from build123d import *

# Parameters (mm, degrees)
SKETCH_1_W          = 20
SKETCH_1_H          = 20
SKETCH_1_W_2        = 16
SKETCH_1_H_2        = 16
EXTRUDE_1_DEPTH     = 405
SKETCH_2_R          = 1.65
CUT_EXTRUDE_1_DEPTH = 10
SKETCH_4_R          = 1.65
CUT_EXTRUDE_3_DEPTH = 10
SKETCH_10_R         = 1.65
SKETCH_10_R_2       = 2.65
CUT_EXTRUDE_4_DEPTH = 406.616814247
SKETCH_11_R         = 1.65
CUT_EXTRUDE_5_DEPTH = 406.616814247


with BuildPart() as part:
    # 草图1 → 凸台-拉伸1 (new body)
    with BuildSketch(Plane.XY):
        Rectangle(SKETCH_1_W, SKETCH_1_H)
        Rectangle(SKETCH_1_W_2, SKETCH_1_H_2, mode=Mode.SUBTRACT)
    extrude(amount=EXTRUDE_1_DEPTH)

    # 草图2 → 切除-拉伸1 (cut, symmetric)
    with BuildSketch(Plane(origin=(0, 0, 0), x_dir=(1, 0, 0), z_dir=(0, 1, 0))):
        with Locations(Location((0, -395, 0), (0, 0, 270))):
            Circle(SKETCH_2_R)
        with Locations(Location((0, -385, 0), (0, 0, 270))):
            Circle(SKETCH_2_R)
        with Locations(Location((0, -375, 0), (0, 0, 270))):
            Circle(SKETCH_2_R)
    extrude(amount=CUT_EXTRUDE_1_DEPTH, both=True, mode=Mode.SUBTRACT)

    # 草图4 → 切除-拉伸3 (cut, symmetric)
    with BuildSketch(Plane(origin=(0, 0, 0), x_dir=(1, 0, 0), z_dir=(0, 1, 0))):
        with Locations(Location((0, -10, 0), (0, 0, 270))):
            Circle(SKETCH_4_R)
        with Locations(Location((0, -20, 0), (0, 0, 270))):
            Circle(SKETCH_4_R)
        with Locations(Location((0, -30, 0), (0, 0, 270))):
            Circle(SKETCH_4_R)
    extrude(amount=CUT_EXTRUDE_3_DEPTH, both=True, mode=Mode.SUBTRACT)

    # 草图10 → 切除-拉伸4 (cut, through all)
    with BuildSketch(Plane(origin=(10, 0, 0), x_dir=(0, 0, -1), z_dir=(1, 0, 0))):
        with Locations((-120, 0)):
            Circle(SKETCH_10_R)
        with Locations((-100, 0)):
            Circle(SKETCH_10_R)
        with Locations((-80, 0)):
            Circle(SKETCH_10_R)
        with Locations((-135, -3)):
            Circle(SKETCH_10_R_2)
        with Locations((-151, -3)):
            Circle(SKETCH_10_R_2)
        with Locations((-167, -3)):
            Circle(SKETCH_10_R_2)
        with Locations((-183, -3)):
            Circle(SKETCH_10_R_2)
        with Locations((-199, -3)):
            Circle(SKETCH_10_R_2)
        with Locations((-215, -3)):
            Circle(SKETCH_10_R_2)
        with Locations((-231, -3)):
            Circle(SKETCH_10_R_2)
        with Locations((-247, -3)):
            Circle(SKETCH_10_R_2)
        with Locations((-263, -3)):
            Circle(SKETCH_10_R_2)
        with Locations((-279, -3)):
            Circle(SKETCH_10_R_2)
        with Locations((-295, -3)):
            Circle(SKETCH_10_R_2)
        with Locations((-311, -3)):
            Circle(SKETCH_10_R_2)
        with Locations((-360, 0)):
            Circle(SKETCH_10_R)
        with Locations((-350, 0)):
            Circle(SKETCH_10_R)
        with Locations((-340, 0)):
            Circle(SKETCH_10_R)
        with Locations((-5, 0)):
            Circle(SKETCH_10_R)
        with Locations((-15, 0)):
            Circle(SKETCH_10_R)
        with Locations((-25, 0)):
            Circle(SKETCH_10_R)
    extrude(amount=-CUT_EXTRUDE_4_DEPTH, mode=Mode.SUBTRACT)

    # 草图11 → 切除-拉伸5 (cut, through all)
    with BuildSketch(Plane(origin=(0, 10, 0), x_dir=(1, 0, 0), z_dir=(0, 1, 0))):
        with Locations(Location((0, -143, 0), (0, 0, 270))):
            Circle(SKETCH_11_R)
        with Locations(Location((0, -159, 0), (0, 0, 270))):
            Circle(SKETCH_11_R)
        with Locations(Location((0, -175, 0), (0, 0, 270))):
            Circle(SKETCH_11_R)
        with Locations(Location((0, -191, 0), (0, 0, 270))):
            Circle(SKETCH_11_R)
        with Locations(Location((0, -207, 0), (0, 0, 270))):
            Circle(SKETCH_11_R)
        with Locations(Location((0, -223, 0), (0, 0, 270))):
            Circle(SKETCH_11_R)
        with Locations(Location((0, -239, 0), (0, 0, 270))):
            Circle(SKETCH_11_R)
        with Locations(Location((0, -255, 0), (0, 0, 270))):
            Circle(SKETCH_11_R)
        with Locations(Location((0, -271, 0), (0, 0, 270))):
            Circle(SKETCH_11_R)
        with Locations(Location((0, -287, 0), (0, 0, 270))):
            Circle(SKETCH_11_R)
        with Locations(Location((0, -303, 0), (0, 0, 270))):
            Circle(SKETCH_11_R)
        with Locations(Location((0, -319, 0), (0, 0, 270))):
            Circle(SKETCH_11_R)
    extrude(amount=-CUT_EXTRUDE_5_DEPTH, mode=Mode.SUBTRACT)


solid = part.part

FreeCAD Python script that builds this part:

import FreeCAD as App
import Part
import Sketcher
from FreeCAD import Vector
Q = App.Units.Quantity

doc = App.newDocument("Part")
body = doc.addObject("PartDesign::Body", "Body")

# Sketch on XY plane
sketch1 = body.newObject("Sketcher::SketchObject", "Sketch")
sketch1.AttachmentSupport = (doc.getObject("XY_Plane"), [""])
sketch1.MapMode = "FlatFace"
sketch1.addGeometry(Part.LineSegment(Vector(-10, 10, 0), Vector(-10, -10, 0)), False)
sketch1.addGeometry(Part.LineSegment(Vector(-10, -10, 0), Vector(10, -10, 0)), False)
sketch1.addGeometry(Part.LineSegment(Vector(10, -10, 0), Vector(10, 10, 0)), False)
sketch1.addGeometry(Part.LineSegment(Vector(10, 10, 0), Vector(-10, 10, 0)), False)
sketch1.addGeometry(Part.LineSegment(Vector(8, -8, 0), Vector(-8, -8, 0)), False)
sketch1.addGeometry(Part.LineSegment(Vector(-8, -8, 0), Vector(-8, 8, 0)), False)
sketch1.addGeometry(Part.LineSegment(Vector(-8, 8, 0), Vector(8, 8, 0)), False)
sketch1.addGeometry(Part.LineSegment(Vector(8, 8, 0), Vector(8, -8, 0)), False)
sketch1.addConstraint(Sketcher.Constraint("Coincident", 0, 2, 1, 1))
sketch1.addConstraint(Sketcher.Constraint("Coincident", 1, 2, 2, 1))
sketch1.addConstraint(Sketcher.Constraint("Coincident", 2, 2, 3, 1))
sketch1.addConstraint(Sketcher.Constraint("Coincident", 3, 2, 0, 1))
sketch1.addConstraint(Sketcher.Constraint("Coincident", 4, 2, 5, 1))
sketch1.addConstraint(Sketcher.Constraint("Coincident", 5, 2, 6, 1))
sketch1.addConstraint(Sketcher.Constraint("Coincident", 6, 2, 7, 1))
sketch1.addConstraint(Sketcher.Constraint("Coincident", 7, 2, 4, 1))
sketch1.addConstraint(Sketcher.Constraint("Vertical", 0))
sketch1.addConstraint(Sketcher.Constraint("Horizontal", 1))
sketch1.addConstraint(Sketcher.Constraint("Vertical", 2))
sketch1.addConstraint(Sketcher.Constraint("Horizontal", 3))
sketch1.addConstraint(Sketcher.Constraint("Horizontal", 4))
sketch1.addConstraint(Sketcher.Constraint("Vertical", 5))
sketch1.addConstraint(Sketcher.Constraint("Horizontal", 6))
sketch1.addConstraint(Sketcher.Constraint("Vertical", 7))
sketch1.addConstraint(Sketcher.Constraint("Symmetric", 0, 2, 2, 2, -1, 1))
sketch1.addConstraint(Sketcher.Constraint("Symmetric", 4, 2, 6, 2, -1, 1))
sketch1.addConstraint(Sketcher.Constraint("Equal", 3, 0))
sketch1.addConstraint(Sketcher.Constraint("Equal", 6, 5))
sketch1.addConstraint(Sketcher.Constraint("DistanceX", 1, 1, 1, 2, Q("20 mm")))
sketch1.addConstraint(Sketcher.Constraint("DistanceX", 4, 2, 4, 1, Q("16 mm")))
pad1 = body.newObject("PartDesign::Pad", "Pad")
pad1.Profile = sketch1
pad1.Length = 405

# Sketch on XZ plane
sketch2 = body.newObject("Sketcher::SketchObject", "Sketch001")
sketch2.AttachmentSupport = (doc.getObject("XZ_Plane"), [""])
sketch2.MapMode = "FlatFace"
sketch2.addGeometry(Part.Circle(Vector(0, 395, 0), Vector(0, 0, 1), 1.65), False)
sketch2.addGeometry(Part.Circle(Vector(0, 385, 0), Vector(0, 0, 1), 1.65), False)
sketch2.addGeometry(Part.Circle(Vector(0, 375, 0), Vector(0, 0, 1), 1.65), False)
sketch2.addConstraint(Sketcher.Constraint("Equal", 0, 1))
sketch2.addConstraint(Sketcher.Constraint("Equal", 1, 2))
sketch2.addConstraint(Sketcher.Constraint("PointOnObject", 0, 3, -2))
sketch2.addConstraint(Sketcher.Constraint("PointOnObject", 1, 3, -2))
sketch2.addConstraint(Sketcher.Constraint("PointOnObject", 2, 3, -2))
sketch2.addConstraint(Sketcher.Constraint("Diameter", 0, Q("3.3 mm")))
sketch2.addConstraint(Sketcher.Constraint("DistanceY", -1, 1, 0, 3, Q("395 mm")))
sketch2.addConstraint(Sketcher.Constraint("DistanceY", -1, 1, 1, 3, Q("385 mm")))
sketch2.addConstraint(Sketcher.Constraint("DistanceY", -1, 1, 2, 3, Q("375 mm")))
pocket1 = body.newObject("PartDesign::Pocket", "Pocket")
pocket1.Profile = sketch2
pocket1.Length = 20
pocket1.Midplane = True

# Sketch on XZ plane
sketch3 = body.newObject("Sketcher::SketchObject", "Sketch002")
sketch3.AttachmentSupport = (doc.getObject("XZ_Plane"), [""])
sketch3.MapMode = "FlatFace"
sketch3.addGeometry(Part.Circle(Vector(0, 10, 0), Vector(0, 0, 1), 1.65), False)
sketch3.addGeometry(Part.Circle(Vector(0, 20, 0), Vector(0, 0, 1), 1.65), False)
sketch3.addGeometry(Part.Circle(Vector(0, 30, 0), Vector(0, 0, 1), 1.65), False)
sketch3.addConstraint(Sketcher.Constraint("Equal", 0, 1))
sketch3.addConstraint(Sketcher.Constraint("Equal", 1, 2))
sketch3.addConstraint(Sketcher.Constraint("PointOnObject", 0, 3, -2))
sketch3.addConstraint(Sketcher.Constraint("PointOnObject", 1, 3, -2))
sketch3.addConstraint(Sketcher.Constraint("PointOnObject", 2, 3, -2))
sketch3.addConstraint(Sketcher.Constraint("Diameter", 0, Q("3.3 mm")))
sketch3.addConstraint(Sketcher.Constraint("DistanceY", -1, 1, 0, 3, Q("10 mm")))
sketch3.addConstraint(Sketcher.Constraint("DistanceY", -1, 1, 1, 3, Q("20 mm")))
sketch3.addConstraint(Sketcher.Constraint("DistanceY", -1, 1, 2, 3, Q("30 mm")))
pocket2 = body.newObject("PartDesign::Pocket", "Pocket001")
pocket2.Profile = sketch3
pocket2.Length = 20
pocket2.Midplane = True

# Sketch on YZ plane
sketch4 = body.newObject("Sketcher::SketchObject", "Sketch003")
sketch4.AttachmentSupport = (doc.getObject("YZ_Plane"), [""])
sketch4.MapMode = "FlatFace"
sketch4.AttachmentOffset = App.Placement(Vector(0, 0, 10), App.Rotation())
sketch4.addGeometry(Part.Circle(Vector(0, 120, 0), Vector(0, 0, 1), 1.65), False)
sketch4.addGeometry(Part.Circle(Vector(0, 100, 0), Vector(0, 0, 1), 1.65), False)
sketch4.addGeometry(Part.Circle(Vector(0, 80, 0), Vector(0, 0, 1), 1.65), False)
sketch4.addGeometry(Part.Circle(Vector(-3, 135, 0), Vector(0, 0, 1), 2.65), False)
sketch4.addGeometry(Part.Circle(Vector(-3, 151, 0), Vector(0, 0, 1), 2.65), False)
sketch4.addGeometry(Part.Circle(Vector(-3, 167, 0), Vector(0, 0, 1), 2.65), False)
sketch4.addGeometry(Part.Circle(Vector(-3, 183, 0), Vector(0, 0, 1), 2.65), False)
sketch4.addGeometry(Part.Circle(Vector(-3, 199, 0), Vector(0, 0, 1), 2.65), False)
sketch4.addGeometry(Part.Circle(Vector(-3, 215, 0), Vector(0, 0, 1), 2.65), False)
sketch4.addGeometry(Part.Circle(Vector(-3, 231, 0), Vector(0, 0, 1), 2.65), False)
sketch4.addGeometry(Part.Circle(Vector(-3, 247, 0), Vector(0, 0, 1), 2.65), False)
sketch4.addGeometry(Part.Circle(Vector(-3, 263, 0), Vector(0, 0, 1), 2.65), False)
sketch4.addGeometry(Part.Circle(Vector(-3, 279, 0), Vector(0, 0, 1), 2.65), False)
sketch4.addGeometry(Part.Circle(Vector(-3, 295, 0), Vector(0, 0, 1), 2.65), False)
sketch4.addGeometry(Part.Circle(Vector(-3, 311, 0), Vector(0, 0, 1), 2.65), False)
sketch4.addGeometry(Part.Circle(Vector(0, 360, 0), Vector(0, 0, 1), 1.65), False)
sketch4.addGeometry(Part.Circle(Vector(0, 350, 0), Vector(0, 0, 1), 1.65), False)
sketch4.addGeometry(Part.Circle(Vector(0, 340, 0), Vector(0, 0, 1), 1.65), False)
sketch4.addGeometry(Part.Circle(Vector(0, 5, 0), Vector(0, 0, 1), 1.65), False)
sketch4.addGeometry(Part.Circle(Vector(0, 15, 0), Vector(0, 0, 1), 1.65), False)
sketch4.addGeometry(Part.Circle(Vector(0, 25, 0), Vector(0, 0, 1), 1.65), False)
sketch4.addConstraint(Sketcher.Constraint("Equal", 0, 1))
sketch4.addConstraint(Sketcher.Constraint("Equal", 1, 2))
sketch4.addConstraint(Sketcher.Constraint("Equal", 3, 4))
sketch4.addConstraint(Sketcher.Constraint("Equal", 4, 5))
sketch4.addConstraint(Sketcher.Constraint("Equal", 5, 6))
sketch4.addConstraint(Sketcher.Constraint("Equal", 6, 7))
sketch4.addConstraint(Sketcher.Constraint("Equal", 7, 8))
sketch4.addConstraint(Sketcher.Constraint("Equal", 8, 9))
sketch4.addConstraint(Sketcher.Constraint("Equal", 9, 10))
sketch4.addConstraint(Sketcher.Constraint("Equal", 10, 11))
sketch4.addConstraint(Sketcher.Constraint("Equal", 11, 12))
sketch4.addConstraint(Sketcher.Constraint("Equal", 12, 13))
sketch4.addConstraint(Sketcher.Constraint("Equal", 13, 14))
sketch4.addConstraint(Sketcher.Constraint("Equal", 2, 15))
sketch4.addConstraint(Sketcher.Constraint("Equal", 15, 16))
sketch4.addConstraint(Sketcher.Constraint("Equal", 16, 17))
sketch4.addConstraint(Sketcher.Constraint("Equal", 17, 18))
sketch4.addConstraint(Sketcher.Constraint("Equal", 18, 19))
sketch4.addConstraint(Sketcher.Constraint("Equal", 19, 20))
sketch4.addConstraint(Sketcher.Constraint("PointOnObject", 0, 3, -2))
sketch4.addConstraint(Sketcher.Constraint("PointOnObject", 1, 3, -2))
sketch4.addConstraint(Sketcher.Constraint("PointOnObject", 2, 3, -2))
sketch4.addConstraint(Sketcher.Constraint("PointOnObject", 15, 3, -2))
sketch4.addConstraint(Sketcher.Constraint("PointOnObject", 16, 3, -2))
sketch4.addConstraint(Sketcher.Constraint("PointOnObject", 17, 3, -2))
sketch4.addConstraint(Sketcher.Constraint("PointOnObject", 18, 3, -2))
sketch4.addConstraint(Sketcher.Constraint("PointOnObject", 19, 3, -2))
sketch4.addConstraint(Sketcher.Constraint("PointOnObject", 20, 3, -2))
sketch4.addConstraint(Sketcher.Constraint("Vertical", 3, 3, 4, 3))
sketch4.addConstraint(Sketcher.Constraint("Vertical", 4, 3, 5, 3))
sketch4.addConstraint(Sketcher.Constraint("Vertical", 5, 3, 6, 3))
sketch4.addConstraint(Sketcher.Constraint("Vertical", 6, 3, 7, 3))
sketch4.addConstraint(Sketcher.Constraint("Vertical", 7, 3, 8, 3))
sketch4.addConstraint(Sketcher.Constraint("Vertical", 8, 3, 9, 3))
sketch4.addConstraint(Sketcher.Constraint("Vertical", 9, 3, 10, 3))
sketch4.addConstraint(Sketcher.Constraint("Vertical", 10, 3, 11, 3))
sketch4.addConstraint(Sketcher.Constraint("Vertical", 11, 3, 12, 3))
sketch4.addConstraint(Sketcher.Constraint("Vertical", 12, 3, 13, 3))
sketch4.addConstraint(Sketcher.Constraint("Vertical", 13, 3, 14, 3))
sketch4.addConstraint(Sketcher.Constraint("Diameter", 0, Q("3.3 mm")))
sketch4.addConstraint(Sketcher.Constraint("Diameter", 3, Q("5.3 mm")))
sketch4.addConstraint(Sketcher.Constraint("DistanceY", -1, 1, 0, 3, Q("120 mm")))
sketch4.addConstraint(Sketcher.Constraint("DistanceY", -1, 1, 1, 3, Q("100 mm")))
sketch4.addConstraint(Sketcher.Constraint("DistanceY", -1, 1, 2, 3, Q("80 mm")))
sketch4.addConstraint(Sketcher.Constraint("DistanceX", 3, 3, -1, 1, Q("3 mm")))
sketch4.addConstraint(Sketcher.Constraint("DistanceY", -1, 1, 3, 3, Q("135 mm")))
sketch4.addConstraint(Sketcher.Constraint("DistanceY", -1, 1, 4, 3, Q("151 mm")))
sketch4.addConstraint(Sketcher.Constraint("DistanceY", -1, 1, 5, 3, Q("167 mm")))
sketch4.addConstraint(Sketcher.Constraint("DistanceY", -1, 1, 6, 3, Q("183 mm")))
sketch4.addConstraint(Sketcher.Constraint("DistanceY", -1, 1, 7, 3, Q("199 mm")))
sketch4.addConstraint(Sketcher.Constraint("DistanceY", -1, 1, 8, 3, Q("215 mm")))
sketch4.addConstraint(Sketcher.Constraint("DistanceY", -1, 1, 9, 3, Q("231 mm")))
sketch4.addConstraint(Sketcher.Constraint("DistanceY", -1, 1, 10, 3, Q("247 mm")))
sketch4.addConstraint(Sketcher.Constraint("DistanceY", -1, 1, 11, 3, Q("263 mm")))
sketch4.addConstraint(Sketcher.Constraint("DistanceY", -1, 1, 12, 3, Q("279 mm")))
sketch4.addConstraint(Sketcher.Constraint("DistanceY", -1, 1, 13, 3, Q("295 mm")))
sketch4.addConstraint(Sketcher.Constraint("DistanceY", -1, 1, 14, 3, Q("311 mm")))
sketch4.addConstraint(Sketcher.Constraint("DistanceY", -1, 1, 15, 3, Q("360 mm")))
sketch4.addConstraint(Sketcher.Constraint("DistanceY", -1, 1, 16, 3, Q("350 mm")))
sketch4.addConstraint(Sketcher.Constraint("DistanceY", -1, 1, 17, 3, Q("340 mm")))
sketch4.addConstraint(Sketcher.Constraint("DistanceY", -1, 1, 18, 3, Q("5 mm")))
sketch4.addConstraint(Sketcher.Constraint("DistanceY", -1, 1, 19, 3, Q("15 mm")))
sketch4.addConstraint(Sketcher.Constraint("DistanceY", -1, 1, 20, 3, Q("25 mm")))
pocket3 = body.newObject("PartDesign::Pocket", "Pocket002")
pocket3.Profile = sketch4
pocket3.Type = "ThroughAll"

# Sketch on XZ plane
sketch5 = body.newObject("Sketcher::SketchObject", "Sketch004")
sketch5.AttachmentSupport = (doc.getObject("XZ_Plane"), [""])
sketch5.MapMode = "FlatFace"
sketch5.AttachmentOffset = App.Placement(Vector(0, 0, -10), App.Rotation())
sketch5.addGeometry(Part.Circle(Vector(0, 143, 0), Vector(0, 0, 1), 1.65), False)
sketch5.addGeometry(Part.Circle(Vector(0, 159, 0), Vector(0, 0, 1), 1.65), False)
sketch5.addGeometry(Part.Circle(Vector(0, 175, 0), Vector(0, 0, 1), 1.65), False)
sketch5.addGeometry(Part.Circle(Vector(0, 191, 0), Vector(0, 0, 1), 1.65), False)
sketch5.addGeometry(Part.Circle(Vector(0, 207, 0), Vector(0, 0, 1), 1.65), False)
sketch5.addGeometry(Part.Circle(Vector(0, 223, 0), Vector(0, 0, 1), 1.65), False)
sketch5.addGeometry(Part.Circle(Vector(0, 239, 0), Vector(0, 0, 1), 1.65), False)
sketch5.addGeometry(Part.Circle(Vector(0, 255, 0), Vector(0, 0, 1), 1.65), False)
sketch5.addGeometry(Part.Circle(Vector(0, 271, 0), Vector(0, 0, 1), 1.65), False)
sketch5.addGeometry(Part.Circle(Vector(0, 287, 0), Vector(0, 0, 1), 1.65), False)
sketch5.addGeometry(Part.Circle(Vector(0, 303, 0), Vector(0, 0, 1), 1.65), False)
sketch5.addGeometry(Part.Circle(Vector(0, 319, 0), Vector(0, 0, 1), 1.65), False)
sketch5.addConstraint(Sketcher.Constraint("Equal", 0, 1))
sketch5.addConstraint(Sketcher.Constraint("Equal", 1, 2))
sketch5.addConstraint(Sketcher.Constraint("Equal", 2, 3))
sketch5.addConstraint(Sketcher.Constraint("Equal", 3, 4))
sketch5.addConstraint(Sketcher.Constraint("Equal", 4, 5))
sketch5.addConstraint(Sketcher.Constraint("Equal", 5, 6))
sketch5.addConstraint(Sketcher.Constraint("Equal", 6, 7))
sketch5.addConstraint(Sketcher.Constraint("Equal", 7, 8))
sketch5.addConstraint(Sketcher.Constraint("Equal", 8, 9))
sketch5.addConstraint(Sketcher.Constraint("Equal", 9, 10))
sketch5.addConstraint(Sketcher.Constraint("Equal", 10, 11))
sketch5.addConstraint(Sketcher.Constraint("PointOnObject", 0, 3, -2))
sketch5.addConstraint(Sketcher.Constraint("PointOnObject", 1, 3, -2))
sketch5.addConstraint(Sketcher.Constraint("PointOnObject", 2, 3, -2))
sketch5.addConstraint(Sketcher.Constraint("PointOnObject", 3, 3, -2))
sketch5.addConstraint(Sketcher.Constraint("PointOnObject", 4, 3, -2))
sketch5.addConstraint(Sketcher.Constraint("PointOnObject", 5, 3, -2))
sketch5.addConstraint(Sketcher.Constraint("PointOnObject", 6, 3, -2))
sketch5.addConstraint(Sketcher.Constraint("PointOnObject", 7, 3, -2))
sketch5.addConstraint(Sketcher.Constraint("PointOnObject", 8, 3, -2))
sketch5.addConstraint(Sketcher.Constraint("PointOnObject", 9, 3, -2))
sketch5.addConstraint(Sketcher.Constraint("PointOnObject", 10, 3, -2))
sketch5.addConstraint(Sketcher.Constraint("PointOnObject", 11, 3, -2))
sketch5.addConstraint(Sketcher.Constraint("Diameter", 0, Q("3.3 mm")))
sketch5.addConstraint(Sketcher.Constraint("DistanceY", -1, 1, 0, 3, Q("143 mm")))
sketch5.addConstraint(Sketcher.Constraint("DistanceY", -1, 1, 1, 3, Q("159 mm")))
sketch5.addConstraint(Sketcher.Constraint("DistanceY", -1, 1, 2, 3, Q("175 mm")))
sketch5.addConstraint(Sketcher.Constraint("DistanceY", -1, 1, 3, 3, Q("191 mm")))
sketch5.addConstraint(Sketcher.Constraint("DistanceY", -1, 1, 4, 3, Q("207 mm")))
sketch5.addConstraint(Sketcher.Constraint("DistanceY", -1, 1, 5, 3, Q("223 mm")))
sketch5.addConstraint(Sketcher.Constraint("DistanceY", -1, 1, 6, 3, Q("239 mm")))
sketch5.addConstraint(Sketcher.Constraint("DistanceY", -1, 1, 7, 3, Q("255 mm")))
sketch5.addConstraint(Sketcher.Constraint("DistanceY", -1, 1, 8, 3, Q("271 mm")))
sketch5.addConstraint(Sketcher.Constraint("DistanceY", -1, 1, 9, 3, Q("287 mm")))
sketch5.addConstraint(Sketcher.Constraint("DistanceY", -1, 1, 10, 3, Q("303 mm")))
sketch5.addConstraint(Sketcher.Constraint("DistanceY", -1, 1, 11, 3, Q("319 mm")))
pocket4 = body.newObject("PartDesign::Pocket", "Pocket003")
pocket4.Profile = sketch5
pocket4.Type = "ThroughAll"
pocket4.Reversed = True

doc.recompute()
